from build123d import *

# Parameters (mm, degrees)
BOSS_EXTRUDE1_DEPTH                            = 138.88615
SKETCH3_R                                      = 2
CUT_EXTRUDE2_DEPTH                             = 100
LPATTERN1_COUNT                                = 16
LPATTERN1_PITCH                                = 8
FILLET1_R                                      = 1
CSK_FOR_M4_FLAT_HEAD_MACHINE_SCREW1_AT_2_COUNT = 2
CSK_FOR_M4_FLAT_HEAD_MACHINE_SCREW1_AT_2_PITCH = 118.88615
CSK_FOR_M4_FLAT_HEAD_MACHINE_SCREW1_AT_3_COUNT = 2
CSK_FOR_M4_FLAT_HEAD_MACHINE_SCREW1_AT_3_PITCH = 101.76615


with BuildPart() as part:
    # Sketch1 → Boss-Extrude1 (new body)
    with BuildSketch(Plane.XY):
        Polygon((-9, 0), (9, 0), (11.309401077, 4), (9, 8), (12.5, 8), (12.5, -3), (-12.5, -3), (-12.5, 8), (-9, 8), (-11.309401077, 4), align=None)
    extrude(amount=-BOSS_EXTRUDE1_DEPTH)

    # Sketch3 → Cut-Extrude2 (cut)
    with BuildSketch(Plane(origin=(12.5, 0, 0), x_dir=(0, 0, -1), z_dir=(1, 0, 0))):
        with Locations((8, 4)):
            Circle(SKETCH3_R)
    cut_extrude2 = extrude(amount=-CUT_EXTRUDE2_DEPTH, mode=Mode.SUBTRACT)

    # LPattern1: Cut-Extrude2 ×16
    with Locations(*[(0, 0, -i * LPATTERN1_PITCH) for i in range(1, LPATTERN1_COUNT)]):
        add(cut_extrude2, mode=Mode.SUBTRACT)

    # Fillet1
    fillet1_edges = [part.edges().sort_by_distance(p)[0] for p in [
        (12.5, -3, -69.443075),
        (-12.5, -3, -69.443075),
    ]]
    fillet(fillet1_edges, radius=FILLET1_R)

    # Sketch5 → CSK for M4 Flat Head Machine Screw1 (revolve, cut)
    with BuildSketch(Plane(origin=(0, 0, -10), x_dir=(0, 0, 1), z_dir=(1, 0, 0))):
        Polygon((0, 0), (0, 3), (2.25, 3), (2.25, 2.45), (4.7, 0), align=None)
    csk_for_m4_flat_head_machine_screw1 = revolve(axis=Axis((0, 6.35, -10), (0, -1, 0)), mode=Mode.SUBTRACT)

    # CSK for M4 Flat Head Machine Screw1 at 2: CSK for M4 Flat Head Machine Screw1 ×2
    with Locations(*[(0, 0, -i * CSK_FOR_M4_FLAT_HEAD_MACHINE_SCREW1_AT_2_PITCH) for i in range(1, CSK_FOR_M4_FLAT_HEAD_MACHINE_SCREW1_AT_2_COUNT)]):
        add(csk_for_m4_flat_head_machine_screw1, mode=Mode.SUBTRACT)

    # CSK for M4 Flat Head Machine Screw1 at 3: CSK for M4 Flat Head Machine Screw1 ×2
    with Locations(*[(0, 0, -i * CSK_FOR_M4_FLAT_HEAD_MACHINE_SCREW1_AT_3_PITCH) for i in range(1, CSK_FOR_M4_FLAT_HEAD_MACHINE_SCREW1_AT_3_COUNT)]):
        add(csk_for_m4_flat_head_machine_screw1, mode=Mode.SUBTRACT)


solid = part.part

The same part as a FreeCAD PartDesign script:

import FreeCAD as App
import Part
import Sketcher

V = App.Vector
Q = App.Units.Quantity


def edges_at(feature, points):
    """Names of the edges that pass closest to the given points."""
    edges = feature.Shape.Edges
    near = lambda p: min(range(len(edges)), key=lambda i: edges[i].distToShape(Part.Vertex(*p))[0])
    return sorted({f"Edge{near(p) + 1}" for p in points})

doc = App.newDocument("Part")
body = doc.addObject("PartDesign::Body", "Body")

# Sketch on XY plane
sketch1 = body.newObject("Sketcher::SketchObject", "Sketch")
sketch1.AttachmentSupport = (doc.getObject("XY_Plane"), [""])
sketch1.MapMode = "FlatFace"
sketch1.addGeometry(Part.LineSegment(V(9, 0, 0), V(-9, 0, 0)), False)
sketch1.addGeometry(Part.LineSegment(V(-9, 0, 0), V(-11.3, 4, 0)), False)
sketch1.addGeometry(Part.LineSegment(V(-11.3, 4, 0), V(-9, 8, 0)), False)
sketch1.addGeometry(Part.LineSegment(V(-9, 8, 0), V(-12.5, 8, 0)), False)
sketch1.addGeometry(Part.LineSegment(V(-12.5, 8, 0), V(-12.5, -3, 0)), False)
sketch1.addGeometry(Part.LineSegment(V(-12.5, -3, 0), V(12.5, -3, 0)), False)
sketch1.addGeometry(Part.LineSegment(V(12.5, -3, 0), V(12.5, 8, 0)), False)
sketch1.addGeometry(Part.LineSegment(V(12.5, 8, 0), V(9, 8, 0)), False)
sketch1.addGeometry(Part.LineSegment(V(9, 8, 0), V(11.3, 4, 0)), False)
sketch1.addGeometry(Part.LineSegment(V(11.3, 4, 0), V(9, 0, 0)), False)
sketch1.addConstraint(Sketcher.Constraint("Coincident", 0, 2, 1, 1))
sketch1.addConstraint(Sketcher.Constraint("Coincident", 1, 2, 2, 1))
sketch1.addConstraint(Sketcher.Constraint("Coincident", 2, 2, 3, 1))
sketch1.addConstraint(Sketcher.Constraint("Coincident", 3, 2, 4, 1))
sketch1.addConstraint(Sketcher.Constraint("Coincident", 4, 2, 5, 1))
sketch1.addConstraint(Sketcher.Constraint("Coincident", 5, 2, 6, 1))
sketch1.addConstraint(Sketcher.Constraint("Coincident", 6, 2, 7, 1))
sketch1.addConstraint(Sketcher.Constraint("Coincident", 7, 2, 8, 1))
sketch1.addConstraint(Sketcher.Constraint("Coincident", 8, 2, 9, 1))
sketch1.addConstraint(Sketcher.Constraint("Coincident", 9, 2, 0, 1))
sketch1.addConstraint(Sketcher.Constraint("Horizontal", 0))
sketch1.addConstraint(Sketcher.Constraint("Horizontal", 3))
sketch1.addConstraint(Sketcher.Constraint("Vertical", 4))
sketch1.addConstraint(Sketcher.Constraint("Horizontal", 5))
sketch1.addConstraint(Sketcher.Constraint("Vertical", 6))
sketch1.addConstraint(Sketcher.Constraint("Horizontal", 7))
sketch1.addConstraint(Sketcher.Constraint("Symmetric", 0, 2, 9, 2, -1, 1))
sketch1.addConstraint(Sketcher.Constraint("Symmetric", 3, 2, 6, 2, -2))
sketch1.addConstraint(Sketcher.Constraint("Symmetric", 1, 2, 8, 2, -2))
sketch1.addConstraint(Sketcher.Constraint("Parallel", 1, 8))
sketch1.addConstraint(Sketcher.Constraint("Parallel", 2, 9))
sketch1.addConstraint(Sketcher.Constraint("Vertical", 0, 2, 2, 2))
sketch1.addConstraint(Sketcher.Constraint("DistanceX", 0, 2, 0, 1, 18.0))
sketch1.addConstraint(Sketcher.Constraint("DistanceX", 5, 1, 5, 2, 25.0))
sketch1.addConstraint(Sketcher.Constraint("DistanceY", 4, 2, 4, 1, 11.0))
sketch1.addConstraint(Sketcher.Constraint("Angle", 1, Q("120 deg")))
sketch1.addConstraint(Sketcher.Constraint("DistanceY", -1, 1, 1, 2, 4.0))
pad1 = body.newObject("PartDesign::Pad", "Pad")
pad1.Profile = sketch1
pad1.Length = 138.88615
pad1.Reversed = True

# Sketch on YZ plane
sketch2 = body.newObject("Sketcher::SketchObject", "Sketch001")
sketch2.AttachmentSupport = (doc.getObject("YZ_Plane"), [""])
sketch2.MapMode = "FlatFace"
sketch2.AttachmentOffset = App.Placement(V(0, 0, 12.5), App.Rotation())
sketch2.addGeometry(Part.Circle(V(4, -8, 0), V(0, 0, 1), 2), False)
sketch2.addConstraint(Sketcher.Constraint("Diameter", 0, 4.0))
sketch2.addConstraint(Sketcher.Constraint("DistanceX", -1, 1, 0, 3, 4.0))
sketch2.addConstraint(Sketcher.Constraint("DistanceY", 0, 3, -1, 1, 8.0))
pocket1 = body.newObject("PartDesign::Pocket", "Pocket")
pocket1.Profile = sketch2
pocket1.Length = 100
doc.recompute()

linearpattern = body.newObject("PartDesign::LinearPattern", "LinearPattern")
linearpattern.Originals = [pocket1]
linearpattern.Direction = (doc.getObject("Z_Axis"), [""])
linearpattern.Mode = "offset"
linearpattern.Offset = 8
linearpattern.Occurrences = 16
linearpattern.Reversed = True
body.Tip = linearpattern
doc.recompute()

fillet = body.newObject("PartDesign::Fillet", "Fillet")
fillet.Base = (linearpattern, edges_at(linearpattern, [(12.5, -3, -69.443), (-12.5, -3, -69.443)]))
fillet.Radius = 1

# Sketch on YZ plane
sketch3 = body.newObject("Sketcher::SketchObject", "Sketch002")
sketch3.AttachmentSupport = (doc.getObject("YZ_Plane"), [""])
sketch3.MapMode = "FlatFace"
sketch3.addGeometry(Part.LineSegment(V(-3, -10, 0), V(0, -10, 0)), False)
sketch3.addGeometry(Part.LineSegment(V(0, -10, 0), V(0, -5.3, 0)), False)
sketch3.addGeometry(Part.LineSegment(V(0, -5.3, 0), V(-2.5, -7.8, 0)), False)
sketch3.addGeometry(Part.LineSegment(V(-2.5, -7.8, 0), V(-3, -7.8, 0)), False)
sketch3.addGeometry(Part.LineSegment(V(-3, -7.8, 0), V(-3, -10, 0)), False)
sketch3.addGeometry(Part.LineSegment(V(0, -10, 0), V(-3, -10, 0)), True)  # axis
sketch3.addConstraint(Sketcher.Constraint("Coincident", 0, 2, 1, 1))
sketch3.addConstraint(Sketcher.Constraint("Coincident", 1, 2, 2, 1))
sketch3.addConstraint(Sketcher.Constraint("Coincident", 2, 2, 3, 1))
sketch3.addConstraint(Sketcher.Constraint("Coincident", 3, 2, 4, 1))
sketch3.addConstraint(Sketcher.Constraint("Coincident", 4, 2, 0, 1))
sketch3.addConstraint(Sketcher.Constraint("Horizontal", 0))
sketch3.addConstraint(Sketcher.Constraint("Vertical", 1))
sketch3.addConstraint(Sketcher.Constraint("Horizontal", 3))
sketch3.addConstraint(Sketcher.Constraint("Vertical", 4))
sketch3.addConstraint(Sketcher.Constraint("Horizontal", 5))
sketch3.addConstraint(Sketcher.Constraint("Coincident", 5, 1, 0, 2))
sketch3.addConstraint(Sketcher.Constraint("PointOnObject", 0, 2, -2))
sketch3.addConstraint(Sketcher.Constraint("Vertical", 3, 2, 5, 2))
sketch3.addConstraint(Sketcher.Constraint("DistanceX", 0, 1, 0, 2, 3.0))
sketch3.addConstraint(Sketcher.Constraint("Angle", 2, Q("-135 deg")))
sketch3.addConstraint(Sketcher.Constraint("DistanceY", 1, 1, 1, 2, 4.7))
sketch3.addConstraint(Sketcher.Constraint("DistanceY", 0, 2, -1, 1, 10.0))
sketch3.addConstraint(Sketcher.Constraint("DistanceX", 3, 2, 3, 1, 0.55))
groove = body.newObject("PartDesign::Groove", "Groove")
groove.Profile = sketch3
groove.ReferenceAxis = (sketch3, ["Axis0"])
groove.Angle = 360
doc.recompute()

linearpattern2 = body.newObject("PartDesign::LinearPattern", "LinearPattern001")
linearpattern2.Originals = [groove]
linearpattern2.Direction = (doc.getObject("Z_Axis"), [""])
linearpattern2.Mode = "offset"
linearpattern2.Offset = 118.88615
linearpattern2.Occurrences = 2
linearpattern2.Reversed = True
body.Tip = linearpattern2
doc.recompute()

linearpattern3 = body.newObject("PartDesign::LinearPattern", "LinearPattern002")
linearpattern3.Originals = [groove]
linearpattern3.Direction = (doc.getObject("Z_Axis"), [""])
linearpattern3.Mode = "offset"
linearpattern3.Offset = 101.76615
linearpattern3.Occurrences = 2
linearpattern3.Reversed = True
body.Tip = linearpattern3

doc.recompute()
